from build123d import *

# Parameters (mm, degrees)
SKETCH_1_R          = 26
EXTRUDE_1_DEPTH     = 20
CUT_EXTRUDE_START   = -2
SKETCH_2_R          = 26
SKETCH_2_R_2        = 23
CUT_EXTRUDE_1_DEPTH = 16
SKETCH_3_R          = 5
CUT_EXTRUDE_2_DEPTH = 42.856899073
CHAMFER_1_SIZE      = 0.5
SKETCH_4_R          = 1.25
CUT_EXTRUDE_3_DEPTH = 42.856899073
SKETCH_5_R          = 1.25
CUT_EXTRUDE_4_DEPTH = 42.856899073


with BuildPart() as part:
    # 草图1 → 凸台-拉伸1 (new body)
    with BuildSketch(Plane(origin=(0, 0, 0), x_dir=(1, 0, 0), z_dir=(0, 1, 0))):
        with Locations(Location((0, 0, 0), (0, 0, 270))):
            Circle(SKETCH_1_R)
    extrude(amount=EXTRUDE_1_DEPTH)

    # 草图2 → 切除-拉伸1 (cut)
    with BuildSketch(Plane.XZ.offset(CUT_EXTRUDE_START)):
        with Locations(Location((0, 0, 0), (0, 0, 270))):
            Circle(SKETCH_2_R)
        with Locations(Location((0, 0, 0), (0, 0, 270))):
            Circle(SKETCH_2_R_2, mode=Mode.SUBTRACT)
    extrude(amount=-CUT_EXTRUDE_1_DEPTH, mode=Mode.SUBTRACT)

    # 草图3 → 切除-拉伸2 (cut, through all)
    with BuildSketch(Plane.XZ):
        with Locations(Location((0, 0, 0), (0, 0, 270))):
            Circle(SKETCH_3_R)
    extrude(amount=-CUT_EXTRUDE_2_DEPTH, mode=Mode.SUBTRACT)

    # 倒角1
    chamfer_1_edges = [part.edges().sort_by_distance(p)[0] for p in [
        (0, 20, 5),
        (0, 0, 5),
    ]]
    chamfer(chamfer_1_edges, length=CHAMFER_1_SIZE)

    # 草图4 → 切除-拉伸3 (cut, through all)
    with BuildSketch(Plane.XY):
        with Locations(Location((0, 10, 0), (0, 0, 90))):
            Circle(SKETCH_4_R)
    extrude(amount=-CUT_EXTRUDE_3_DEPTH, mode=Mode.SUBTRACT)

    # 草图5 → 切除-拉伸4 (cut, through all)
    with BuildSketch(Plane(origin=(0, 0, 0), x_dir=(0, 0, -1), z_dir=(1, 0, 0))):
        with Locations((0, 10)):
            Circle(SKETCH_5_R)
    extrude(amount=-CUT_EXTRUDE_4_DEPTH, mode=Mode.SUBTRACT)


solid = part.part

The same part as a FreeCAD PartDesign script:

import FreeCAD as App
import Part
import Sketcher
Q = App.Units.Quantity


def edges_at(feature, points):
    """Names of the edges that pass closest to the given points."""
    edges = feature.Shape.Edges
    near = lambda p: min(range(len(edges)), key=lambda i: edges[i].distToShape(Part.Vertex(*p))[0])
    return sorted({f"Edge{near(p) + 1}" for p in points})

doc = App.newDocument("Part")
params = doc.addObject("Spreadsheet::Sheet", "Params")
for row, (alias, value) in enumerate([
    ("sketch1_diameter", "52 mm"),
    ("pad1_length", "20 mm"),
    ("sketch2_diameter", "52 mm"),
    ("sketch2_diameter2", "46 mm"),
    ("pocket1_length", "16 mm"),
    ("sketch3_diameter", "10 mm"),
    ("chamfer_size", "0.5 mm"),
    ("sketch4_diameter", "2.5 mm"),
    ("sketch5_diameter", "2.5 mm"),
], start=1):
    params.set(f"A{row}", alias)
    params.set(f"B{row}", "=" + value)
    params.setAlias(f"B{row}", alias)

body = doc.addObject("PartDesign::Body", "Body")

# Sketch on XZ plane
sketch1 = doc.addObject("Sketcher::SketchObject", "Sketch")
body.addObject(sketch1)
sketch1.AttachmentSupport = (doc.XZ_Plane, [""])
sketch1.MapMode = "FlatFace"
sketch1.addGeometry(Part.Circle(App.Vector(0, 0, 0), App.Vector(0, 0, 1), 26), False)
sketch1.addConstraint(Sketcher.Constraint("Coincident", 0, 3, -1, 1))
sketch1.addConstraint(Sketcher.Constraint("Diameter", 0, Q("52 mm")))
sketch1.setExpression("Constraints[1]", "Params.sketch1_diameter")
pad1 = doc.addObject("PartDesign::Pad", "Pad")
body.addObject(pad1)
pad1.Profile = sketch1
pad1.setExpression("Length", "Params.pad1_length")
pad1.Reversed = True

# Sketch on XZ plane
sketch2 = doc.addObject("Sketcher::SketchObject", "Sketch001")
body.addObject(sketch2)
sketch2.AttachmentSupport = (doc.XZ_Plane, [""])
sketch2.MapMode = "FlatFace"
sketch2.AttachmentOffset = App.Placement(App.Vector(0, 0, -2), App.Rotation())
sketch2.addGeometry(Part.Circle(App.Vector(0, 0, 0), App.Vector(0, 0, 1), 26), False)
sketch2.addGeometry(Part.Circle(App.Vector(0, 0, 0), App.Vector(0, 0, 1), 23), False)
sketch2.addConstraint(Sketcher.Constraint("Coincident", 0, 3, -1, 1))
sketch2.addConstraint(Sketcher.Constraint("Coincident", 1, 3, -1, 1))
sketch2.addConstraint(Sketcher.Constraint("Diameter", 0, Q("52 mm")))
sketch2.addConstraint(Sketcher.Constraint("Diameter", 1, Q("46 mm")))
sketch2.setExpression("Constraints[2]", "Params.sketch2_diameter")
sketch2.setExpression("Constraints[3]", "Params.sketch2_diameter2")
pocket1 = doc.addObject("PartDesign::Pocket", "Pocket")
body.addObject(pocket1)
pocket1.Profile = sketch2
pocket1.setExpression("Length", "Params.pocket1_length")

# Sketch on XZ plane
sketch3 = doc.addObject("Sketcher::SketchObject", "Sketch002")
body.addObject(sketch3)
sketch3.AttachmentSupport = (doc.XZ_Plane, [""])
sketch3.MapMode = "FlatFace"
sketch3.addGeometry(Part.Circle(App.Vector(0, 0, 0), App.Vector(0, 0, 1), 5), False)
sketch3.addConstraint(Sketcher.Constraint("Coincident", 0, 3, -1, 1))
sketch3.addConstraint(Sketcher.Constraint("Diameter", 0, Q("10 mm")))
sketch3.setExpression("Constraints[1]", "Params.sketch3_diameter")
pocket2 = doc.addObject("PartDesign::Pocket", "Pocket001")
body.addObject(pocket2)
pocket2.Profile = sketch3
pocket2.Type = "ThroughAll"
doc.recompute()

chamfer = doc.addObject("PartDesign::Chamfer", "Chamfer")
body.addObject(chamfer)
chamfer.Base = (pocket2, edges_at(pocket2, [(0, 20, 5), (0, 0, 5)]))
chamfer.setExpression("Size", "Params.chamfer_size")

# Sketch on XY plane
sketch4 = doc.addObject("Sketcher::SketchObject", "Sketch003")
body.addObject(sketch4)
sketch4.AttachmentSupport = (doc.XY_Plane, [""])
sketch4.MapMode = "FlatFace"
sketch4.addGeometry(Part.Circle(App.Vector(0, 10, 0), App.Vector(0, 0, 1), 1.2), False)
sketch4.addConstraint(Sketcher.Constraint("PointOnObject", 0, 3, -2))
sketch4.addConstraint(Sketcher.Constraint("Diameter", 0, Q("2.5 mm")))
sketch4.addConstraint(Sketcher.Constraint("DistanceY", -1, 1, 0, 3, Q("10 mm")))
sketch4.setExpression("Constraints[1]", "Params.sketch4_diameter")
pocket3 = doc.addObject("PartDesign::Pocket", "Pocket002")
body.addObject(pocket3)
pocket3.Profile = sketch4
pocket3.Type = "ThroughAll"

# Sketch on YZ plane
sketch5 = doc.addObject("Sketcher::SketchObject", "Sketch004")
body.addObject(sketch5)
sketch5.AttachmentSupport = (doc.YZ_Plane, [""])
sketch5.MapMode = "FlatFace"
sketch5.addGeometry(Part.Circle(App.Vector(10, 0, 0), App.Vector(0, 0, 1), 1.2), False)
sketch5.addConstraint(Sketcher.Constraint("PointOnObject", 0, 3, -1))
sketch5.addConstraint(Sketcher.Constraint("Diameter", 0, Q("2.5 mm")))
sketch5.addConstraint(Sketcher.Constraint("DistanceX", -1, 1, 0, 3, Q("10 mm")))
sketch5.setExpression("Constraints[1]", "Params.sketch5_diameter")
pocket4 = doc.addObject("PartDesign::Pocket", "Pocket003")
body.addObject(pocket4)
pocket4.Profile = sketch5
pocket4.Type = "ThroughAll"

doc.recompute()
